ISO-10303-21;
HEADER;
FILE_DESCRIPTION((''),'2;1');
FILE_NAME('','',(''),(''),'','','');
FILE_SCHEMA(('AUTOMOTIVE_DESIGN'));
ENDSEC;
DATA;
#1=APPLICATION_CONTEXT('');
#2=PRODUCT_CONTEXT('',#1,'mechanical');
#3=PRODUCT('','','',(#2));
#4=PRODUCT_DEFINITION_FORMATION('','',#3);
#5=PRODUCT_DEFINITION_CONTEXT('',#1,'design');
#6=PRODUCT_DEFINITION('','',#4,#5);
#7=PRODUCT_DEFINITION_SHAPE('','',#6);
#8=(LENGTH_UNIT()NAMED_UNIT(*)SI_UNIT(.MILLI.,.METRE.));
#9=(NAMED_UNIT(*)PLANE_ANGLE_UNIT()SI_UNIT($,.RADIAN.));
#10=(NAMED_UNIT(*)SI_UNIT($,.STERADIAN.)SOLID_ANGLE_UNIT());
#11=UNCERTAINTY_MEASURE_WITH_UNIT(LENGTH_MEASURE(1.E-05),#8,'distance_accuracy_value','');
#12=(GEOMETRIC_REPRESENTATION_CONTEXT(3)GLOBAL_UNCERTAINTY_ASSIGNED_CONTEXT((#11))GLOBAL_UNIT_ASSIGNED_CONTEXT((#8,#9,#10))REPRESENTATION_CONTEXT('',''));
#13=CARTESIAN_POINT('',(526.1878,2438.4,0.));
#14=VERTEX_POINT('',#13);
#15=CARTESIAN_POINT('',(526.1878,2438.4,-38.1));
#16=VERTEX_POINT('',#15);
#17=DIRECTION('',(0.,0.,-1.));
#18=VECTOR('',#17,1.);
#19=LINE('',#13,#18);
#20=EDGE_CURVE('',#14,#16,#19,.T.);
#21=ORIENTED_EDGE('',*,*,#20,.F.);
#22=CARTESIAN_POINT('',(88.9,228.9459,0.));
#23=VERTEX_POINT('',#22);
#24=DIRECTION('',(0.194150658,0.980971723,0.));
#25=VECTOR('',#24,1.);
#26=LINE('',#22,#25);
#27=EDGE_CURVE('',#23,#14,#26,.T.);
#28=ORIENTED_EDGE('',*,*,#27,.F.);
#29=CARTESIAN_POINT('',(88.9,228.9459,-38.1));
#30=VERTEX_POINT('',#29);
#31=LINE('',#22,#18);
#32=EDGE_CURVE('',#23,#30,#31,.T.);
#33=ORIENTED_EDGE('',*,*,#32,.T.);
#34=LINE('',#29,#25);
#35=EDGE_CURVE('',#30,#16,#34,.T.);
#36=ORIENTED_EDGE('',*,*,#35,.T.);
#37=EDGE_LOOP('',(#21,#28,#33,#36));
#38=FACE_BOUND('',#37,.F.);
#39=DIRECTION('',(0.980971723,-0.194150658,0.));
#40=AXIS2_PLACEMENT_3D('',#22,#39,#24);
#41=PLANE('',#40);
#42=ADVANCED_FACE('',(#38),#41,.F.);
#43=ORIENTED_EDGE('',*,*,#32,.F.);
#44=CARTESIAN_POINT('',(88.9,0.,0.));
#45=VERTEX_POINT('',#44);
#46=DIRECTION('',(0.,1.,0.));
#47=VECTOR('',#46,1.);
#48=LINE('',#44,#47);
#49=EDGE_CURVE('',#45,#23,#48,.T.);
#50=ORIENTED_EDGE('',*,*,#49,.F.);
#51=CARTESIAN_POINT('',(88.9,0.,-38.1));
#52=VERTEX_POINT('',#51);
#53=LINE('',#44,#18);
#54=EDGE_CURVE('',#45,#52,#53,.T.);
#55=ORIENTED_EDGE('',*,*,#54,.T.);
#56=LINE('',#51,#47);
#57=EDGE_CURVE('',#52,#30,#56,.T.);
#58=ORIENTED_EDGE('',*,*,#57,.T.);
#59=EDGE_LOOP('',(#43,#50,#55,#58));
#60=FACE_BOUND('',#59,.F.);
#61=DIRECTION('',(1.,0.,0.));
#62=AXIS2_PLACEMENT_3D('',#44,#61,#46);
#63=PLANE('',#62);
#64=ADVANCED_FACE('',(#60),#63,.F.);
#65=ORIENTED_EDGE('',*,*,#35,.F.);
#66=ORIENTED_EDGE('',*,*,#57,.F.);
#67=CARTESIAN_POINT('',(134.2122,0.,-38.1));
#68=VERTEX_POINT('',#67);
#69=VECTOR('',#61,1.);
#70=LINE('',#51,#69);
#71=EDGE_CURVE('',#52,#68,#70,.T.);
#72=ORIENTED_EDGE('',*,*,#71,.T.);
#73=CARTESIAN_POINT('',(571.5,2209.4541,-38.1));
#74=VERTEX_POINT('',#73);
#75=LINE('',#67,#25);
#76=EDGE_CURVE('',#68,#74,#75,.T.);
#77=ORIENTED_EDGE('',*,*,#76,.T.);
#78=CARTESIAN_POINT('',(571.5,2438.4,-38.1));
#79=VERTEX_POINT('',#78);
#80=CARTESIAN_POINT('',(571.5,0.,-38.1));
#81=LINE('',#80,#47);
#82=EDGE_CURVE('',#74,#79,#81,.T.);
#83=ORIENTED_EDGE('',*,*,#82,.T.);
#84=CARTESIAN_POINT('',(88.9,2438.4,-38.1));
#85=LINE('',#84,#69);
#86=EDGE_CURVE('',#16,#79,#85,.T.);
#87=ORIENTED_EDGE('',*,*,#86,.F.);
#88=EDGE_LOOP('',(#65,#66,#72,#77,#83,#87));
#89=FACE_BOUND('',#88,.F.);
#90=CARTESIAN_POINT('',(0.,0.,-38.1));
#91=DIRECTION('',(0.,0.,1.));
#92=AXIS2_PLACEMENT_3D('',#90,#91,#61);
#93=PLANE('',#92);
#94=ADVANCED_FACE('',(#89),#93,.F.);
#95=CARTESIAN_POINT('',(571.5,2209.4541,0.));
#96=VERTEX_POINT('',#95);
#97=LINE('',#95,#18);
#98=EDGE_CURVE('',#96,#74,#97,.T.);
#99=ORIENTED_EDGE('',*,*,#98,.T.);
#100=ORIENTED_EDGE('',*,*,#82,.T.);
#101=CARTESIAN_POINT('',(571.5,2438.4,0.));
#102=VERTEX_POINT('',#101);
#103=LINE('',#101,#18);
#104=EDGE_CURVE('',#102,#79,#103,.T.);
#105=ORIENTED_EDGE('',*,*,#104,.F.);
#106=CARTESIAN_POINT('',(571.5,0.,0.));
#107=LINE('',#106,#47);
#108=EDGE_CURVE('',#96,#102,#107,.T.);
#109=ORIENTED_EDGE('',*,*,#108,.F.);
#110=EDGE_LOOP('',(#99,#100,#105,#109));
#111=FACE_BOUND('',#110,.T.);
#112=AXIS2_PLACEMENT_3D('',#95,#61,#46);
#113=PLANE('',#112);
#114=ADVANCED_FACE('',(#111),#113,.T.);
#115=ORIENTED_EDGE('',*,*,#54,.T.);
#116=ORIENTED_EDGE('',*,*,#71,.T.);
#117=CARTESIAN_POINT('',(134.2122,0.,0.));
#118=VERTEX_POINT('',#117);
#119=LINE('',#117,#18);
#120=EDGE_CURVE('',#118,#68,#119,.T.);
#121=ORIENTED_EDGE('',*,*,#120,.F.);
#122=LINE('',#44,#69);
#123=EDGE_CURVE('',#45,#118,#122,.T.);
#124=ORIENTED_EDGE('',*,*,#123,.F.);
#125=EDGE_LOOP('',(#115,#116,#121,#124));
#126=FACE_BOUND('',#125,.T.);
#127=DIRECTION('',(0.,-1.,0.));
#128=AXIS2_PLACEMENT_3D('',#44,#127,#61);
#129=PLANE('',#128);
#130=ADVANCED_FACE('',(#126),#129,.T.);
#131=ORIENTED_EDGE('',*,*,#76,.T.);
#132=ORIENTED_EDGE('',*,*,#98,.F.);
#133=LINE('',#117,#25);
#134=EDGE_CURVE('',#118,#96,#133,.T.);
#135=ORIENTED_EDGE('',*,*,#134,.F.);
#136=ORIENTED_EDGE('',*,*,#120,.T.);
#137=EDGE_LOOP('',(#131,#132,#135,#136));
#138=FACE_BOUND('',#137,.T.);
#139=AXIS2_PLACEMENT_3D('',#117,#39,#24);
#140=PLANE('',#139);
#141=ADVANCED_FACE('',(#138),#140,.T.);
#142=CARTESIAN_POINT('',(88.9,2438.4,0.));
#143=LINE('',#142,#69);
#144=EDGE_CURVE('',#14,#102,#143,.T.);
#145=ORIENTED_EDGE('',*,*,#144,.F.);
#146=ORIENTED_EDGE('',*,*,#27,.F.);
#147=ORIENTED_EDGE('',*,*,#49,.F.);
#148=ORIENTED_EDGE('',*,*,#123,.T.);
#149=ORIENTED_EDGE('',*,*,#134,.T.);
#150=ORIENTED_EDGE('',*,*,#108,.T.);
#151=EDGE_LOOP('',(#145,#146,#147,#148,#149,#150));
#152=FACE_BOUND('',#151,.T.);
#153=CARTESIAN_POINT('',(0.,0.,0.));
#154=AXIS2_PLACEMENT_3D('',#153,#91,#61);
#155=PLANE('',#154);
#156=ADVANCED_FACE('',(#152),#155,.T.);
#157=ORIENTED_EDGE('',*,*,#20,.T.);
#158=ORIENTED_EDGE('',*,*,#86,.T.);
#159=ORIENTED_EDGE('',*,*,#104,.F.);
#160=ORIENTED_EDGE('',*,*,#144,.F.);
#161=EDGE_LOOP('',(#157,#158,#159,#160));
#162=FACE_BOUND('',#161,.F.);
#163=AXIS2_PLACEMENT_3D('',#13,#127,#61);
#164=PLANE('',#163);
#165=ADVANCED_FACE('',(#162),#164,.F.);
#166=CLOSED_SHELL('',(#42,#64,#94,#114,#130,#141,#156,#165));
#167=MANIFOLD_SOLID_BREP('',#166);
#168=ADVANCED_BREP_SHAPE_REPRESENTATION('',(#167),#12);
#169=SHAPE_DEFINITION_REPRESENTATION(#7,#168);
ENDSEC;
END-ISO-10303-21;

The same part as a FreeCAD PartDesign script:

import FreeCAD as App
import Part
import Sketcher

V = App.Vector
Q = App.Units.Quantity

doc = App.newDocument("Part")
body = doc.addObject("PartDesign::Body", "Body")

sketch1 = body.newObject("Sketcher::SketchObject", "Sketch")
sketch1.AttachmentSupport = (doc.getObject("XY_Plane"), [""])
sketch1.MapMode = "FlatFace"
sketch1.addGeometry([
    Part.LineSegment(V(134, 0, 0), V(572, 2209, 0)),
    Part.LineSegment(V(572, 2209, 0), V(572, 2438, 0)),
    Part.LineSegment(V(572, 2438, 0), V(526, 2438, 0)),
    Part.LineSegment(V(526, 2438, 0), V(89, 229, 0)),
    Part.LineSegment(V(89, 229, 0), V(89, 0, 0)),
    Part.LineSegment(V(89, 0, 0), V(134, 0, 0)),
], False)
sketch1.addConstraint([
    Sketcher.Constraint("Coincident", 0, 2, 1, 1),
    Sketcher.Constraint("Coincident", 1, 2, 2, 1),
    Sketcher.Constraint("Coincident", 2, 2, 3, 1),
    Sketcher.Constraint("Coincident", 3, 2, 4, 1),
    Sketcher.Constraint("Coincident", 4, 2, 5, 1),
    Sketcher.Constraint("Coincident", 5, 2, 0, 1),
    Sketcher.Constraint("Vertical", 1),
    Sketcher.Constraint("Horizontal", 2),
    Sketcher.Constraint("Vertical", 4),
    Sketcher.Constraint("Horizontal", 5),
    Sketcher.Constraint("PointOnObject", 4, 2, -1),
    Sketcher.Constraint("Parallel", 0, 3),
    Sketcher.Constraint("Equal", 2, 5),
    Sketcher.Constraint("DistanceY", -1, 1, 1, 2, Q("96 in")),
    Sketcher.Constraint("DistanceX", 3, 2, 0, 2, Q("19 in")),
    Sketcher.Constraint("DistanceX", -1, 1, 0, 2, Q("22.5 in")),
    Sketcher.Constraint("Distance", 0, Q("88.6737 in")),
    Sketcher.Constraint("DistanceX", 2, 2, 2, 1, 45.3122),
])
pad1 = body.newObject("PartDesign::Pad", "Pad")
pad1.Profile = sketch1
pad1.Length = Q("1.5 in")
pad1.Reversed = True

doc.recompute()
